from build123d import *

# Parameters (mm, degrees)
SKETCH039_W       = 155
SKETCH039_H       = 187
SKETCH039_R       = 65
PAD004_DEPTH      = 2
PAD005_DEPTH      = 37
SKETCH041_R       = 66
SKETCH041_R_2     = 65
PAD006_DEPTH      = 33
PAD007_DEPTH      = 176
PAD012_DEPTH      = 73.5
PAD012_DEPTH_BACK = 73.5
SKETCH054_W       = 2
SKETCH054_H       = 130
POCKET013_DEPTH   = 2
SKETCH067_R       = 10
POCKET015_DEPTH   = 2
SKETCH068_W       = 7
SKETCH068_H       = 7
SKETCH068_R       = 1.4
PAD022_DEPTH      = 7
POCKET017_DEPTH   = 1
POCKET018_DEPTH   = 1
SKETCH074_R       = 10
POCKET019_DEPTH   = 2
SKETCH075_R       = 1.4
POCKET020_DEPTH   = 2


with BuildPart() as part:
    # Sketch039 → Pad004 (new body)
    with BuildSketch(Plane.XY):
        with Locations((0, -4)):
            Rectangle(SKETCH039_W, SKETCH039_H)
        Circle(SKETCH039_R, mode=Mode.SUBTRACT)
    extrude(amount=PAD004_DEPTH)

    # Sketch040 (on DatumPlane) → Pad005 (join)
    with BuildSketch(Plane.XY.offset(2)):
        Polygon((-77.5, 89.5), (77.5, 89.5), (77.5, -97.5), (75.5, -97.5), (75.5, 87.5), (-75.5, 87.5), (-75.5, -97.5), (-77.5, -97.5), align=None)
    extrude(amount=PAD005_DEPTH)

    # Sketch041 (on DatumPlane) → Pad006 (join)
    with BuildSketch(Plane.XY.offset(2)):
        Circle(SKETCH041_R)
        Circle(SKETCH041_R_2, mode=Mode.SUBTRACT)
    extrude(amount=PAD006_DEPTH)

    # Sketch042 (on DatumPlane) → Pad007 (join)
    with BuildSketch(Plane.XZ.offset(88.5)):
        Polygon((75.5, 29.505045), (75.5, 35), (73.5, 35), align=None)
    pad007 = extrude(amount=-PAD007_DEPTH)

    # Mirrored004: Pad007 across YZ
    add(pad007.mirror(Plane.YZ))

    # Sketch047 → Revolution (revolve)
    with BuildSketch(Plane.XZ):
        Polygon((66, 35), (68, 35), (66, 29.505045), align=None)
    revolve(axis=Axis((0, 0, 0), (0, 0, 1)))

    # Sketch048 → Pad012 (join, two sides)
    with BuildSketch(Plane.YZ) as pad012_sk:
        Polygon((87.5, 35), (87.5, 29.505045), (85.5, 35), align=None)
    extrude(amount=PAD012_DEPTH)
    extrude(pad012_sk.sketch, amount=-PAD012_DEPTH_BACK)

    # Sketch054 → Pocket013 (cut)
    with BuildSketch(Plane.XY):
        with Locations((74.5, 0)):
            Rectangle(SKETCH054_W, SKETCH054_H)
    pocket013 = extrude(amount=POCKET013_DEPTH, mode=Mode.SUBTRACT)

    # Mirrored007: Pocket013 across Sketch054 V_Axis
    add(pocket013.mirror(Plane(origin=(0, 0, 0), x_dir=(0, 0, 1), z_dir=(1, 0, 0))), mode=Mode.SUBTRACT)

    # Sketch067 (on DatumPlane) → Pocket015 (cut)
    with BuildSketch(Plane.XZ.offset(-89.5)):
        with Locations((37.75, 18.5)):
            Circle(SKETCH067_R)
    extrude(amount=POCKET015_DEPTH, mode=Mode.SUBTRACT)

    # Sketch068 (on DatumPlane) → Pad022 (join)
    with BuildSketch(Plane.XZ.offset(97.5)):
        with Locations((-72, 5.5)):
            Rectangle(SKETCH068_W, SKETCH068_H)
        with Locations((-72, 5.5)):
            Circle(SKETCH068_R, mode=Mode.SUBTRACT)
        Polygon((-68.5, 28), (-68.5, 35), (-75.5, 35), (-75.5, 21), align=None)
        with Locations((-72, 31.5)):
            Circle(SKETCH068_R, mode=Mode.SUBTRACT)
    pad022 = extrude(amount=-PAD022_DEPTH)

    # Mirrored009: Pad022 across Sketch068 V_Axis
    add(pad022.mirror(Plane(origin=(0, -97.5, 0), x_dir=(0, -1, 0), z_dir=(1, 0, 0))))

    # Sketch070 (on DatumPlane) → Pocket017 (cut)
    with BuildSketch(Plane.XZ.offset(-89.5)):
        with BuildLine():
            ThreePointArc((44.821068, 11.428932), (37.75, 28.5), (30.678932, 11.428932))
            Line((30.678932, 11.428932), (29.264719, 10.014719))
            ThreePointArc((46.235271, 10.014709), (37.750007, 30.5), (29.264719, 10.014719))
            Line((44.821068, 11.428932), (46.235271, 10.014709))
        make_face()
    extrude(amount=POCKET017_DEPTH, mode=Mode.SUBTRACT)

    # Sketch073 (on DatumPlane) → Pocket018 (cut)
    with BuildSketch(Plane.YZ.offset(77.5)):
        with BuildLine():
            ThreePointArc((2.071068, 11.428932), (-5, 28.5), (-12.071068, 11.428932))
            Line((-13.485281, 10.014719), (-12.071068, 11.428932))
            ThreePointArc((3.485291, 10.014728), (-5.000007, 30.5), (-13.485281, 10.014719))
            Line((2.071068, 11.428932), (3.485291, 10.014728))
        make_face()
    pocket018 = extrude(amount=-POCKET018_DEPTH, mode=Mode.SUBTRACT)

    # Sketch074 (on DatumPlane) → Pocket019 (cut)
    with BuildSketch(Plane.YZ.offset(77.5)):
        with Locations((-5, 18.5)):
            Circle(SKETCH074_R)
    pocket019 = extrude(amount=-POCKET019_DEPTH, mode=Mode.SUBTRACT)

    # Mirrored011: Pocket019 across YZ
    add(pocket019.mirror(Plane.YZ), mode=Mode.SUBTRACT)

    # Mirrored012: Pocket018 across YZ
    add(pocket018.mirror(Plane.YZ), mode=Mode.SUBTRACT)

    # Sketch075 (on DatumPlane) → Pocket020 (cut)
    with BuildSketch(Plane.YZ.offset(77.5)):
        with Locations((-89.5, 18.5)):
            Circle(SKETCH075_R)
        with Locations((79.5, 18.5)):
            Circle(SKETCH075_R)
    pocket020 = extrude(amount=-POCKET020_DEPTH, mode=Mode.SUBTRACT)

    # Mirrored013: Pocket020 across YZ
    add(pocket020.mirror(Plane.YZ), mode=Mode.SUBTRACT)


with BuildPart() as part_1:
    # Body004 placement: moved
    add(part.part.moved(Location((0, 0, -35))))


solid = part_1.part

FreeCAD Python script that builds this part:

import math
import FreeCAD as App
import Part
import Sketcher
Q = App.Units.Quantity


def add_polygon(sketch, points):
    """Adds a closed chain of lines whose ends are joined by coincident constraints."""
    first, n = sketch.GeometryCount, len(points)
    for a, b in zip(points, points[1:] + points[:1]):
        sketch.addGeometry(Part.LineSegment(App.Vector(*a, 0), App.Vector(*b, 0)), False)
    for i in range(n):
        sketch.addConstraint(Sketcher.Constraint("Coincident", first + i, 2, first + (i + 1) % n, 1))

doc = App.newDocument("Part")
body = doc.addObject("PartDesign::Body", "Body")

# Sketch on XY plane
sketch1 = body.newObject("Sketcher::SketchObject", "Sketch")
sketch1.AttachmentSupport = (doc.getObject("XY_Plane"), [""])
sketch1.MapMode = "FlatFace"
add_polygon(sketch1, [(-78, 90), (-78, -98), (78, -98), (78, 90)])  # lines 0-3
sketch1.addGeometry(Part.Circle(App.Vector(0, 0, 0), App.Vector(0, 0, 1), 65), False)  # 4
sketch1.addConstraint(Sketcher.Constraint("Vertical", 0))
sketch1.addConstraint(Sketcher.Constraint("Horizontal", 1))
sketch1.addConstraint(Sketcher.Constraint("Vertical", 2))
sketch1.addConstraint(Sketcher.Constraint("Horizontal", 3))
sketch1.addConstraint(Sketcher.Constraint("Coincident", 4, 3, -1, 1))
sketch1.addConstraint(Sketcher.Constraint("Diameter", 4, 130.0))
sketch1.addConstraint(Sketcher.Constraint("DistanceX", 1, 1, 1, 2, 155.0))
sketch1.addConstraint(Sketcher.Constraint("DistanceY", 0, 2, 0, 1, 187.0))
sketch1.addConstraint(Sketcher.Constraint("DistanceX", 0, 2, -1, 1, 77.5))
sketch1.addConstraint(Sketcher.Constraint("DistanceY", 0, 2, -1, 1, 97.5))
pad1 = body.newObject("PartDesign::Pad", "Pad")
pad1.Profile = sketch1
pad1.Length = 2

# Sketch on XY plane
sketch2 = body.newObject("Sketcher::SketchObject", "Sketch001")
sketch2.AttachmentSupport = (doc.getObject("XY_Plane"), [""])
sketch2.MapMode = "FlatFace"
sketch2.AttachmentOffset = App.Placement(App.Vector(0, 0, 2), App.Rotation())
add_polygon(sketch2, [(77.5, 89.5), (-77.5, 89.5), (-77.5, -97.5), (-75.5, -97.5), (-75.5, 87.5), (75.5, 87.5), (75.5, -97.5), (77.5, -97.5)])  # lines 0-7
sketch2.addConstraint(Sketcher.Constraint("Horizontal", 0))
sketch2.addConstraint(Sketcher.Constraint("Vertical", 1))
sketch2.addConstraint(Sketcher.Constraint("Horizontal", 2))
sketch2.addConstraint(Sketcher.Constraint("Vertical", 3))
sketch2.addConstraint(Sketcher.Constraint("Horizontal", 4))
sketch2.addConstraint(Sketcher.Constraint("Vertical", 5))
sketch2.addConstraint(Sketcher.Constraint("Horizontal", 6))
sketch2.addConstraint(Sketcher.Constraint("Vertical", 7))
sketch2.addConstraint(Sketcher.Constraint("Symmetric", 2, 2, 5, 2, -2))
sketch2.addConstraint(Sketcher.Constraint("Equal", 2, 6))
sketch2.addConstraint(Sketcher.Constraint("DistanceX", 0, 2, 0, 1, 155.0))
sketch2.addConstraint(Sketcher.Constraint("DistanceX", 2, 1, 2, 2, 2.0))
sketch2.addConstraint(Sketcher.Constraint("DistanceY", 1, 2, 1, 1, 187.0))
sketch2.addConstraint(Sketcher.Constraint("DistanceY", 3, 1, 3, 2, 185.0))
sketch2.addConstraint(Sketcher.Constraint("DistanceY", -1, 1, 0, 2, 89.5))
pad2 = body.newObject("PartDesign::Pad", "Pad001")
pad2.Profile = sketch2
pad2.Length = 37

# Sketch on XY plane
sketch3 = body.newObject("Sketcher::SketchObject", "Sketch002")
sketch3.AttachmentSupport = (doc.getObject("XY_Plane"), [""])
sketch3.MapMode = "FlatFace"
sketch3.AttachmentOffset = App.Placement(App.Vector(0, 0, 2), App.Rotation())
sketch3.addGeometry(Part.Circle(App.Vector(0, 0, 0), App.Vector(0, 0, 1), 66), False)
sketch3.addGeometry(Part.Circle(App.Vector(0, 0, 0), App.Vector(0, 0, 1), 65), False)
sketch3.addConstraint(Sketcher.Constraint("Coincident", 0, 3, -1, 1))
sketch3.addConstraint(Sketcher.Constraint("Coincident", 1, 3, -1, 1))
sketch3.addConstraint(Sketcher.Constraint("Diameter", 0, 132.0))
sketch3.addConstraint(Sketcher.Constraint("Diameter", 1, 130.0))
pad3 = body.newObject("PartDesign::Pad", "Pad002")
pad3.Profile = sketch3
pad3.Length = 33

# Sketch on XZ plane
sketch4 = body.newObject("Sketcher::SketchObject", "Sketch003")
sketch4.AttachmentSupport = (doc.getObject("XZ_Plane"), [""])
sketch4.MapMode = "FlatFace"
sketch4.AttachmentOffset = App.Placement(App.Vector(0, 0, 88.5), App.Rotation())
add_polygon(sketch4, [(75.5, 29.5), (75.5, 35), (73.5, 35)])  # lines 0-2
sketch4.addConstraint(Sketcher.Constraint("Vertical", 0))
sketch4.addConstraint(Sketcher.Constraint("Horizontal", 1))
sketch4.addConstraint(Sketcher.Constraint("DistanceX", 1, 2, 1, 1, 2.0))
sketch4.addConstraint(Sketcher.Constraint("Angle", 2, Q("-70.000001 deg")))
sketch4.addConstraint(Sketcher.Constraint("DistanceY", -1, 1, 0, 2, 35.0))
sketch4.addConstraint(Sketcher.Constraint("DistanceX", -1, 1, 0, 2, 75.5))
pad4 = body.newObject("PartDesign::Pad", "Pad003")
pad4.Profile = sketch4
pad4.Length = 176
pad4.Reversed = True
doc.recompute()

mirrored = body.newObject("PartDesign::Mirrored", "Mirrored")
mirrored.Originals = [pad4]
mirrored.MirrorPlane = (doc.getObject("YZ_Plane"), [""])
body.Tip = mirrored

# Sketch on XZ plane
sketch5 = body.newObject("Sketcher::SketchObject", "Sketch004")
sketch5.AttachmentSupport = (doc.getObject("XZ_Plane"), [""])
sketch5.MapMode = "FlatFace"
add_polygon(sketch5, [(68, 35), (66, 35), (66, 29.5)])  # lines 0-2
sketch5.addConstraint(Sketcher.Constraint("Horizontal", 0))
sketch5.addConstraint(Sketcher.Constraint("Vertical", 1))
sketch5.addConstraint(Sketcher.Constraint("DistanceX", 0, 2, 0, 1, 2.0))
sketch5.addConstraint(Sketcher.Constraint("Angle", 2, Q("70.000001 deg")))
sketch5.addConstraint(Sketcher.Constraint("DistanceX", -1, 1, 0, 2, 66.0))
sketch5.addConstraint(Sketcher.Constraint("DistanceY", -1, 1, 0, 2, 35.0))
revolution = body.newObject("PartDesign::Revolution", "Revolution")
revolution.Profile = sketch5
revolution.ReferenceAxis = (sketch5, ["V_Axis"])
revolution.Angle = 360

# Sketch on YZ plane
sketch6 = body.newObject("Sketcher::SketchObject", "Sketch005")
sketch6.AttachmentSupport = (doc.getObject("YZ_Plane"), [""])
sketch6.MapMode = "FlatFace"
add_polygon(sketch6, [(87.5, 29.5), (87.5, 35), (85.5, 35)])  # lines 0-2
sketch6.addConstraint(Sketcher.Constraint("Vertical", 0))
sketch6.addConstraint(Sketcher.Constraint("Horizontal", 1))
sketch6.addConstraint(Sketcher.Constraint("DistanceX", 1, 2, 1, 1, 2.0))
sketch6.addConstraint(Sketcher.Constraint("Angle", 2, Q("-70.000001 deg")))
sketch6.addConstraint(Sketcher.Constraint("DistanceY", -1, 1, 0, 2, 35.0))
sketch6.addConstraint(Sketcher.Constraint("DistanceX", -1, 1, 0, 2, 87.5))
pad5 = body.newObject("PartDesign::Pad", "Pad004")
pad5.Profile = sketch6
pad5.Type = "TwoLengths"
pad5.Length = 73.5
pad5.Length2 = 73.5

# Sketch on XY plane
sketch7 = body.newObject("Sketcher::SketchObject", "Sketch006")
sketch7.AttachmentSupport = (doc.getObject("XY_Plane"), [""])
sketch7.MapMode = "FlatFace"
add_polygon(sketch7, [(73.5, 65), (73.5, -65), (75.5, -65), (75.5, 65)])  # lines 0-3
sketch7.addConstraint(Sketcher.Constraint("Vertical", 0))
sketch7.addConstraint(Sketcher.Constraint("Horizontal", 1))
sketch7.addConstraint(Sketcher.Constraint("Vertical", 2))
sketch7.addConstraint(Sketcher.Constraint("Horizontal", 3))
sketch7.addConstraint(Sketcher.Constraint("DistanceX", 1, 1, 1, 2, 2.0))
sketch7.addConstraint(Sketcher.Constraint("DistanceY", 0, 2, 0, 1, 130.0))
sketch7.addConstraint(Sketcher.Constraint("DistanceY", 0, 2, -1, 1, 65.0))
sketch7.addConstraint(Sketcher.Constraint("DistanceX", -1, 1, 0, 2, 73.5))
pocket1 = body.newObject("PartDesign::Pocket", "Pocket")
pocket1.Profile = sketch7
pocket1.Length = 2
pocket1.Reversed = True
doc.recompute()

mirrored2 = body.newObject("PartDesign::Mirrored", "Mirrored001")
mirrored2.Originals = [pocket1]
mirrored2.MirrorPlane = (doc.getObject("YZ_Plane"), [""])
body.Tip = mirrored2

# Sketch on XZ plane
sketch8 = body.newObject("Sketcher::SketchObject", "Sketch007")
sketch8.AttachmentSupport = (doc.getObject("XZ_Plane"), [""])
sketch8.MapMode = "FlatFace"
sketch8.AttachmentOffset = App.Placement(App.Vector(0, 0, -89.5), App.Rotation())
sketch8.addGeometry(Part.Circle(App.Vector(38, 18, 0), App.Vector(0, 0, 1), 10), False)
sketch8.addConstraint(Sketcher.Constraint("Diameter", 0, 20.0))
sketch8.addConstraint(Sketcher.Constraint("DistanceY", -1, 1, 0, 3, 18.5))
sketch8.addConstraint(Sketcher.Constraint("DistanceX", -1, 1, 0, 3, 37.75))
pocket2 = body.newObject("PartDesign::Pocket", "Pocket001")
pocket2.Profile = sketch8
pocket2.Length = 2
pocket2.Reversed = True

# Sketch on XZ plane
sketch9 = body.newObject("Sketcher::SketchObject", "Sketch008")
sketch9.AttachmentSupport = (doc.getObject("XZ_Plane"), [""])
sketch9.MapMode = "FlatFace"
sketch9.AttachmentOffset = App.Placement(App.Vector(0, 0, 97.5), App.Rotation())
add_polygon(sketch9, [(-75.5, 9), (-75.5, 2), (-68.5, 2), (-68.5, 9)])  # lines 0-3
sketch9.addGeometry(Part.Circle(App.Vector(-72, 5.5, 0), App.Vector(0, 0, 1), 1.4), False)  # 4
add_polygon(sketch9, [(-68.5, 28), (-68.5, 35), (-75.5, 35), (-75.5, 21)])  # lines 5-8
sketch9.addGeometry(Part.Circle(App.Vector(-72, 31.5, 0), App.Vector(0, 0, 1), 1.4), False)  # 9
sketch9.addConstraint(Sketcher.Constraint("Vertical", 0))
sketch9.addConstraint(Sketcher.Constraint("Horizontal", 1))
sketch9.addConstraint(Sketcher.Constraint("Vertical", 2))
sketch9.addConstraint(Sketcher.Constraint("Horizontal", 3))
sketch9.addConstraint(Sketcher.Constraint("Vertical", 5))
sketch9.addConstraint(Sketcher.Constraint("Horizontal", 6))
sketch9.addConstraint(Sketcher.Constraint("Vertical", 7))
sketch9.addConstraint(Sketcher.Constraint("Equal", 4, 9))
sketch9.addConstraint(Sketcher.Constraint("Vertical", 4, 3, 9, 3))
sketch9.addConstraint(Sketcher.Constraint("Vertical", 2, 2, 5, 2))
sketch9.addConstraint(Sketcher.Constraint("Vertical", 3, 2, 6, 2))
sketch9.addConstraint(Sketcher.Constraint("Equal", 6, 0))
sketch9.addConstraint(Sketcher.Constraint("Equal", 2, 5))
sketch9.addConstraint(Sketcher.Constraint("Diameter", 4, 2.8))
sketch9.addConstraint(Sketcher.Constraint("DistanceX", 1, 1, 1, 2, 7.0))
sketch9.addConstraint(Sketcher.Constraint("DistanceY", 7, 2, 7, 1, 14.0))
sketch9.addConstraint(Sketcher.Constraint("DistanceX", 4, 3, -1, 1, 72.0))
sketch9.addConstraint(Sketcher.Constraint("DistanceY", -1, 1, 0, 2, 2.0))
sketch9.addConstraint(Sketcher.Constraint("DistanceY", -1, 1, 5, 2, 35.0))
sketch9.addConstraint(Sketcher.Constraint("DistanceY", 4, 3, 9, 3, 26.0))
sketch9.addConstraint(Sketcher.Constraint("DistanceY", -1, 1, 4, 3, 5.5))
sketch9.addConstraint(Sketcher.Constraint("DistanceX", 0, 2, -1, 1, 75.5))
pad6 = body.newObject("PartDesign::Pad", "Pad005")
pad6.Profile = sketch9
pad6.Length = 7
pad6.Reversed = True
doc.recompute()

mirrored3 = body.newObject("PartDesign::Mirrored", "Mirrored002")
mirrored3.Originals = [pad6]
mirrored3.MirrorPlane = (doc.getObject("YZ_Plane"), [""])
body.Tip = mirrored3

# Sketch on XZ plane
sketch10 = body.newObject("Sketcher::SketchObject", "Sketch009")
sketch10.AttachmentSupport = (doc.getObject("XZ_Plane"), [""])
sketch10.MapMode = "FlatFace"
sketch10.AttachmentOffset = App.Placement(App.Vector(0, 0, -89.5), App.Rotation())
sketch10.addGeometry(Part.ArcOfCircle(Part.Circle(App.Vector(37.8, 18.5, 0), App.Vector(0, 0, 1), 10), math.radians(-45), math.radians(225)), False)
sketch10.addGeometry(Part.LineSegment(App.Vector(44.8, 11.4, 0), App.Vector(46.2, 10, 0)), False)
sketch10.addGeometry(Part.ArcOfCircle(Part.Circle(App.Vector(37.8, 18.5, 0), App.Vector(0, 0, 1), 12), math.radians(-45), math.radians(225)), False)
sketch10.addGeometry(Part.LineSegment(App.Vector(29.3, 10, 0), App.Vector(30.7, 11.4, 0)), False)
sketch10.addConstraint(Sketcher.Constraint("Coincident", 0, 1, 1, 1))
sketch10.addConstraint(Sketcher.Constraint("Coincident", 1, 2, 2, 1))
sketch10.addConstraint(Sketcher.Constraint("Coincident", 2, 2, 3, 1))
sketch10.addConstraint(Sketcher.Constraint("Coincident", 3, 2, 0, 2))
sketch10.addConstraint(Sketcher.Constraint("Coincident", 2, 3, 0, 3))
sketch10.addConstraint(Sketcher.Constraint("Horizontal", 0, 1, 3, 2))
sketch10.addConstraint(Sketcher.Constraint("Radius", 0, 10.0))
sketch10.addConstraint(Sketcher.Constraint("Radius", 2, 12.0))
sketch10.addConstraint(Sketcher.Constraint("Angle", 3, Q("45 deg")))
sketch10.addConstraint(Sketcher.Constraint("DistanceY", -1, 1, 0, 3, 18.5))
sketch10.addConstraint(Sketcher.Constraint("DistanceX", -1, 1, 0, 3, 37.75))
sketch10.addConstraint(Sketcher.Constraint("DistanceX", -1, 1, 0, 1, 44.821068))
sketch10.addConstraint(Sketcher.Constraint("DistanceX", -1, 1, 1, 2, 46.235271))
pocket3 = body.newObject("PartDesign::Pocket", "Pocket002")
pocket3.Profile = sketch10
pocket3.Length = 1
pocket3.Reversed = True

# Sketch on YZ plane
sketch11 = body.newObject("Sketcher::SketchObject", "Sketch010")
sketch11.AttachmentSupport = (doc.getObject("YZ_Plane"), [""])
sketch11.MapMode = "FlatFace"
sketch11.AttachmentOffset = App.Placement(App.Vector(0, 0, 77.5), App.Rotation())
sketch11.addGeometry(Part.ArcOfCircle(Part.Circle(App.Vector(-5, 18.5, 0), App.Vector(0, 0, 1), 10), math.radians(-45), math.radians(225)), False)
sketch11.addGeometry(Part.LineSegment(App.Vector(2.1, 11.4, 0), App.Vector(3.5, 10, 0)), False)
sketch11.addGeometry(Part.ArcOfCircle(Part.Circle(App.Vector(-5, 18.5, 0), App.Vector(0, 0, 1), 12), math.radians(-45), math.radians(225)), False)
sketch11.addGeometry(Part.LineSegment(App.Vector(-13.5, 10, 0), App.Vector(-12.1, 11.4, 0)), False)
sketch11.addConstraint(Sketcher.Constraint("Coincident", 0, 1, 1, 1))
sketch11.addConstraint(Sketcher.Constraint("Coincident", 1, 2, 2, 1))
sketch11.addConstraint(Sketcher.Constraint("Coincident", 2, 2, 3, 1))
sketch11.addConstraint(Sketcher.Constraint("Coincident", 3, 2, 0, 2))
sketch11.addConstraint(Sketcher.Constraint("Coincident", 2, 3, 0, 3))
sketch11.addConstraint(Sketcher.Constraint("Horizontal", 0, 1, 3, 2))
sketch11.addConstraint(Sketcher.Constraint("Radius", 0, 10.0))
sketch11.addConstraint(Sketcher.Constraint("Radius", 2, 12.0))
sketch11.addConstraint(Sketcher.Constraint("Angle", 3, Q("45 deg")))
sketch11.addConstraint(Sketcher.Constraint("DistanceX", 0, 3, -1, 1, 5.0))
sketch11.addConstraint(Sketcher.Constraint("DistanceY", -1, 1, 0, 3, 18.5))
sketch11.addConstraint(Sketcher.Constraint("DistanceX", -1, 1, 0, 1, 2.071068))
sketch11.addConstraint(Sketcher.Constraint("DistanceX", -1, 1, 1, 2, 3.485291))
pocket4 = body.newObject("PartDesign::Pocket", "Pocket003")
pocket4.Profile = sketch11
pocket4.Length = 1

# Sketch on YZ plane
sketch12 = body.newObject("Sketcher::SketchObject", "Sketch011")
sketch12.AttachmentSupport = (doc.getObject("YZ_Plane"), [""])
sketch12.MapMode = "FlatFace"
sketch12.AttachmentOffset = App.Placement(App.Vector(0, 0, 77.5), App.Rotation())
sketch12.addGeometry(Part.Circle(App.Vector(-5, 18, 0), App.Vector(0, 0, 1), 10), False)
sketch12.addConstraint(Sketcher.Constraint("Diameter", 0, 20.0))
sketch12.addConstraint(Sketcher.Constraint("DistanceX", 0, 3, -1, 1, 5.0))
sketch12.addConstraint(Sketcher.Constraint("DistanceY", -1, 1, 0, 3, 18.5))
pocket5 = body.newObject("PartDesign::Pocket", "Pocket004")
pocket5.Profile = sketch12
pocket5.Length = 2
doc.recompute()

mirrored4 = body.newObject("PartDesign::Mirrored", "Mirrored003")
mirrored4.Originals = [pocket5]
mirrored4.MirrorPlane = (doc.getObject("YZ_Plane"), [""])
body.Tip = mirrored4
doc.recompute()

mirrored5 = body.newObject("PartDesign::Mirrored", "Mirrored004")
mirrored5.Originals = [pocket4]
mirrored5.MirrorPlane = (doc.getObject("YZ_Plane"), [""])
body.Tip = mirrored5

# Sketch on YZ plane
sketch13 = body.newObject("Sketcher::SketchObject", "Sketch012")
sketch13.AttachmentSupport = (doc.getObject("YZ_Plane"), [""])
sketch13.MapMode = "FlatFace"
sketch13.AttachmentOffset = App.Placement(App.Vector(0, 0, 77.5), App.Rotation())
sketch13.addGeometry(Part.Circle(App.Vector(-89.5, 18.5, 0), App.Vector(0, 0, 1), 1.4), False)
sketch13.addGeometry(Part.Circle(App.Vector(79.5, 18.5, 0), App.Vector(0, 0, 1), 1.4), False)
sketch13.addConstraint(Sketcher.Constraint("Equal", 0, 1))
sketch13.addConstraint(Sketcher.Constraint("Horizontal", 0, 3, 1, 3))
sketch13.addConstraint(Sketcher.Constraint("Diameter", 0, 2.8))
sketch13.addConstraint(Sketcher.Constraint("DistanceX", 0, 3, 1, 3, 169.0))
sketch13.addConstraint(Sketcher.Constraint("DistanceX", 0, 3, -1, 1, 89.5))
sketch13.addConstraint(Sketcher.Constraint("DistanceY", -1, 1, 0, 3, 18.5))
pocket6 = body.newObject("PartDesign::Pocket", "Pocket005")
pocket6.Profile = sketch13
pocket6.Length = 2
doc.recompute()

mirrored6 = body.newObject("PartDesign::Mirrored", "Mirrored005")
mirrored6.Originals = [pocket6]
mirrored6.MirrorPlane = (doc.getObject("YZ_Plane"), [""])
body.Tip = mirrored6
body2 = doc.addObject("PartDesign::Body", "Body001")
doc.recompute()

body.Placement = App.Placement(App.Vector(0, 0, -35), App.Rotation(App.Vector(0, 0, 1), 0))
boolean = body2.newObject("PartDesign::Boolean", "Boolean")
boolean.Type = "Fuse"
boolean.addObjects([body])

doc.recompute()
